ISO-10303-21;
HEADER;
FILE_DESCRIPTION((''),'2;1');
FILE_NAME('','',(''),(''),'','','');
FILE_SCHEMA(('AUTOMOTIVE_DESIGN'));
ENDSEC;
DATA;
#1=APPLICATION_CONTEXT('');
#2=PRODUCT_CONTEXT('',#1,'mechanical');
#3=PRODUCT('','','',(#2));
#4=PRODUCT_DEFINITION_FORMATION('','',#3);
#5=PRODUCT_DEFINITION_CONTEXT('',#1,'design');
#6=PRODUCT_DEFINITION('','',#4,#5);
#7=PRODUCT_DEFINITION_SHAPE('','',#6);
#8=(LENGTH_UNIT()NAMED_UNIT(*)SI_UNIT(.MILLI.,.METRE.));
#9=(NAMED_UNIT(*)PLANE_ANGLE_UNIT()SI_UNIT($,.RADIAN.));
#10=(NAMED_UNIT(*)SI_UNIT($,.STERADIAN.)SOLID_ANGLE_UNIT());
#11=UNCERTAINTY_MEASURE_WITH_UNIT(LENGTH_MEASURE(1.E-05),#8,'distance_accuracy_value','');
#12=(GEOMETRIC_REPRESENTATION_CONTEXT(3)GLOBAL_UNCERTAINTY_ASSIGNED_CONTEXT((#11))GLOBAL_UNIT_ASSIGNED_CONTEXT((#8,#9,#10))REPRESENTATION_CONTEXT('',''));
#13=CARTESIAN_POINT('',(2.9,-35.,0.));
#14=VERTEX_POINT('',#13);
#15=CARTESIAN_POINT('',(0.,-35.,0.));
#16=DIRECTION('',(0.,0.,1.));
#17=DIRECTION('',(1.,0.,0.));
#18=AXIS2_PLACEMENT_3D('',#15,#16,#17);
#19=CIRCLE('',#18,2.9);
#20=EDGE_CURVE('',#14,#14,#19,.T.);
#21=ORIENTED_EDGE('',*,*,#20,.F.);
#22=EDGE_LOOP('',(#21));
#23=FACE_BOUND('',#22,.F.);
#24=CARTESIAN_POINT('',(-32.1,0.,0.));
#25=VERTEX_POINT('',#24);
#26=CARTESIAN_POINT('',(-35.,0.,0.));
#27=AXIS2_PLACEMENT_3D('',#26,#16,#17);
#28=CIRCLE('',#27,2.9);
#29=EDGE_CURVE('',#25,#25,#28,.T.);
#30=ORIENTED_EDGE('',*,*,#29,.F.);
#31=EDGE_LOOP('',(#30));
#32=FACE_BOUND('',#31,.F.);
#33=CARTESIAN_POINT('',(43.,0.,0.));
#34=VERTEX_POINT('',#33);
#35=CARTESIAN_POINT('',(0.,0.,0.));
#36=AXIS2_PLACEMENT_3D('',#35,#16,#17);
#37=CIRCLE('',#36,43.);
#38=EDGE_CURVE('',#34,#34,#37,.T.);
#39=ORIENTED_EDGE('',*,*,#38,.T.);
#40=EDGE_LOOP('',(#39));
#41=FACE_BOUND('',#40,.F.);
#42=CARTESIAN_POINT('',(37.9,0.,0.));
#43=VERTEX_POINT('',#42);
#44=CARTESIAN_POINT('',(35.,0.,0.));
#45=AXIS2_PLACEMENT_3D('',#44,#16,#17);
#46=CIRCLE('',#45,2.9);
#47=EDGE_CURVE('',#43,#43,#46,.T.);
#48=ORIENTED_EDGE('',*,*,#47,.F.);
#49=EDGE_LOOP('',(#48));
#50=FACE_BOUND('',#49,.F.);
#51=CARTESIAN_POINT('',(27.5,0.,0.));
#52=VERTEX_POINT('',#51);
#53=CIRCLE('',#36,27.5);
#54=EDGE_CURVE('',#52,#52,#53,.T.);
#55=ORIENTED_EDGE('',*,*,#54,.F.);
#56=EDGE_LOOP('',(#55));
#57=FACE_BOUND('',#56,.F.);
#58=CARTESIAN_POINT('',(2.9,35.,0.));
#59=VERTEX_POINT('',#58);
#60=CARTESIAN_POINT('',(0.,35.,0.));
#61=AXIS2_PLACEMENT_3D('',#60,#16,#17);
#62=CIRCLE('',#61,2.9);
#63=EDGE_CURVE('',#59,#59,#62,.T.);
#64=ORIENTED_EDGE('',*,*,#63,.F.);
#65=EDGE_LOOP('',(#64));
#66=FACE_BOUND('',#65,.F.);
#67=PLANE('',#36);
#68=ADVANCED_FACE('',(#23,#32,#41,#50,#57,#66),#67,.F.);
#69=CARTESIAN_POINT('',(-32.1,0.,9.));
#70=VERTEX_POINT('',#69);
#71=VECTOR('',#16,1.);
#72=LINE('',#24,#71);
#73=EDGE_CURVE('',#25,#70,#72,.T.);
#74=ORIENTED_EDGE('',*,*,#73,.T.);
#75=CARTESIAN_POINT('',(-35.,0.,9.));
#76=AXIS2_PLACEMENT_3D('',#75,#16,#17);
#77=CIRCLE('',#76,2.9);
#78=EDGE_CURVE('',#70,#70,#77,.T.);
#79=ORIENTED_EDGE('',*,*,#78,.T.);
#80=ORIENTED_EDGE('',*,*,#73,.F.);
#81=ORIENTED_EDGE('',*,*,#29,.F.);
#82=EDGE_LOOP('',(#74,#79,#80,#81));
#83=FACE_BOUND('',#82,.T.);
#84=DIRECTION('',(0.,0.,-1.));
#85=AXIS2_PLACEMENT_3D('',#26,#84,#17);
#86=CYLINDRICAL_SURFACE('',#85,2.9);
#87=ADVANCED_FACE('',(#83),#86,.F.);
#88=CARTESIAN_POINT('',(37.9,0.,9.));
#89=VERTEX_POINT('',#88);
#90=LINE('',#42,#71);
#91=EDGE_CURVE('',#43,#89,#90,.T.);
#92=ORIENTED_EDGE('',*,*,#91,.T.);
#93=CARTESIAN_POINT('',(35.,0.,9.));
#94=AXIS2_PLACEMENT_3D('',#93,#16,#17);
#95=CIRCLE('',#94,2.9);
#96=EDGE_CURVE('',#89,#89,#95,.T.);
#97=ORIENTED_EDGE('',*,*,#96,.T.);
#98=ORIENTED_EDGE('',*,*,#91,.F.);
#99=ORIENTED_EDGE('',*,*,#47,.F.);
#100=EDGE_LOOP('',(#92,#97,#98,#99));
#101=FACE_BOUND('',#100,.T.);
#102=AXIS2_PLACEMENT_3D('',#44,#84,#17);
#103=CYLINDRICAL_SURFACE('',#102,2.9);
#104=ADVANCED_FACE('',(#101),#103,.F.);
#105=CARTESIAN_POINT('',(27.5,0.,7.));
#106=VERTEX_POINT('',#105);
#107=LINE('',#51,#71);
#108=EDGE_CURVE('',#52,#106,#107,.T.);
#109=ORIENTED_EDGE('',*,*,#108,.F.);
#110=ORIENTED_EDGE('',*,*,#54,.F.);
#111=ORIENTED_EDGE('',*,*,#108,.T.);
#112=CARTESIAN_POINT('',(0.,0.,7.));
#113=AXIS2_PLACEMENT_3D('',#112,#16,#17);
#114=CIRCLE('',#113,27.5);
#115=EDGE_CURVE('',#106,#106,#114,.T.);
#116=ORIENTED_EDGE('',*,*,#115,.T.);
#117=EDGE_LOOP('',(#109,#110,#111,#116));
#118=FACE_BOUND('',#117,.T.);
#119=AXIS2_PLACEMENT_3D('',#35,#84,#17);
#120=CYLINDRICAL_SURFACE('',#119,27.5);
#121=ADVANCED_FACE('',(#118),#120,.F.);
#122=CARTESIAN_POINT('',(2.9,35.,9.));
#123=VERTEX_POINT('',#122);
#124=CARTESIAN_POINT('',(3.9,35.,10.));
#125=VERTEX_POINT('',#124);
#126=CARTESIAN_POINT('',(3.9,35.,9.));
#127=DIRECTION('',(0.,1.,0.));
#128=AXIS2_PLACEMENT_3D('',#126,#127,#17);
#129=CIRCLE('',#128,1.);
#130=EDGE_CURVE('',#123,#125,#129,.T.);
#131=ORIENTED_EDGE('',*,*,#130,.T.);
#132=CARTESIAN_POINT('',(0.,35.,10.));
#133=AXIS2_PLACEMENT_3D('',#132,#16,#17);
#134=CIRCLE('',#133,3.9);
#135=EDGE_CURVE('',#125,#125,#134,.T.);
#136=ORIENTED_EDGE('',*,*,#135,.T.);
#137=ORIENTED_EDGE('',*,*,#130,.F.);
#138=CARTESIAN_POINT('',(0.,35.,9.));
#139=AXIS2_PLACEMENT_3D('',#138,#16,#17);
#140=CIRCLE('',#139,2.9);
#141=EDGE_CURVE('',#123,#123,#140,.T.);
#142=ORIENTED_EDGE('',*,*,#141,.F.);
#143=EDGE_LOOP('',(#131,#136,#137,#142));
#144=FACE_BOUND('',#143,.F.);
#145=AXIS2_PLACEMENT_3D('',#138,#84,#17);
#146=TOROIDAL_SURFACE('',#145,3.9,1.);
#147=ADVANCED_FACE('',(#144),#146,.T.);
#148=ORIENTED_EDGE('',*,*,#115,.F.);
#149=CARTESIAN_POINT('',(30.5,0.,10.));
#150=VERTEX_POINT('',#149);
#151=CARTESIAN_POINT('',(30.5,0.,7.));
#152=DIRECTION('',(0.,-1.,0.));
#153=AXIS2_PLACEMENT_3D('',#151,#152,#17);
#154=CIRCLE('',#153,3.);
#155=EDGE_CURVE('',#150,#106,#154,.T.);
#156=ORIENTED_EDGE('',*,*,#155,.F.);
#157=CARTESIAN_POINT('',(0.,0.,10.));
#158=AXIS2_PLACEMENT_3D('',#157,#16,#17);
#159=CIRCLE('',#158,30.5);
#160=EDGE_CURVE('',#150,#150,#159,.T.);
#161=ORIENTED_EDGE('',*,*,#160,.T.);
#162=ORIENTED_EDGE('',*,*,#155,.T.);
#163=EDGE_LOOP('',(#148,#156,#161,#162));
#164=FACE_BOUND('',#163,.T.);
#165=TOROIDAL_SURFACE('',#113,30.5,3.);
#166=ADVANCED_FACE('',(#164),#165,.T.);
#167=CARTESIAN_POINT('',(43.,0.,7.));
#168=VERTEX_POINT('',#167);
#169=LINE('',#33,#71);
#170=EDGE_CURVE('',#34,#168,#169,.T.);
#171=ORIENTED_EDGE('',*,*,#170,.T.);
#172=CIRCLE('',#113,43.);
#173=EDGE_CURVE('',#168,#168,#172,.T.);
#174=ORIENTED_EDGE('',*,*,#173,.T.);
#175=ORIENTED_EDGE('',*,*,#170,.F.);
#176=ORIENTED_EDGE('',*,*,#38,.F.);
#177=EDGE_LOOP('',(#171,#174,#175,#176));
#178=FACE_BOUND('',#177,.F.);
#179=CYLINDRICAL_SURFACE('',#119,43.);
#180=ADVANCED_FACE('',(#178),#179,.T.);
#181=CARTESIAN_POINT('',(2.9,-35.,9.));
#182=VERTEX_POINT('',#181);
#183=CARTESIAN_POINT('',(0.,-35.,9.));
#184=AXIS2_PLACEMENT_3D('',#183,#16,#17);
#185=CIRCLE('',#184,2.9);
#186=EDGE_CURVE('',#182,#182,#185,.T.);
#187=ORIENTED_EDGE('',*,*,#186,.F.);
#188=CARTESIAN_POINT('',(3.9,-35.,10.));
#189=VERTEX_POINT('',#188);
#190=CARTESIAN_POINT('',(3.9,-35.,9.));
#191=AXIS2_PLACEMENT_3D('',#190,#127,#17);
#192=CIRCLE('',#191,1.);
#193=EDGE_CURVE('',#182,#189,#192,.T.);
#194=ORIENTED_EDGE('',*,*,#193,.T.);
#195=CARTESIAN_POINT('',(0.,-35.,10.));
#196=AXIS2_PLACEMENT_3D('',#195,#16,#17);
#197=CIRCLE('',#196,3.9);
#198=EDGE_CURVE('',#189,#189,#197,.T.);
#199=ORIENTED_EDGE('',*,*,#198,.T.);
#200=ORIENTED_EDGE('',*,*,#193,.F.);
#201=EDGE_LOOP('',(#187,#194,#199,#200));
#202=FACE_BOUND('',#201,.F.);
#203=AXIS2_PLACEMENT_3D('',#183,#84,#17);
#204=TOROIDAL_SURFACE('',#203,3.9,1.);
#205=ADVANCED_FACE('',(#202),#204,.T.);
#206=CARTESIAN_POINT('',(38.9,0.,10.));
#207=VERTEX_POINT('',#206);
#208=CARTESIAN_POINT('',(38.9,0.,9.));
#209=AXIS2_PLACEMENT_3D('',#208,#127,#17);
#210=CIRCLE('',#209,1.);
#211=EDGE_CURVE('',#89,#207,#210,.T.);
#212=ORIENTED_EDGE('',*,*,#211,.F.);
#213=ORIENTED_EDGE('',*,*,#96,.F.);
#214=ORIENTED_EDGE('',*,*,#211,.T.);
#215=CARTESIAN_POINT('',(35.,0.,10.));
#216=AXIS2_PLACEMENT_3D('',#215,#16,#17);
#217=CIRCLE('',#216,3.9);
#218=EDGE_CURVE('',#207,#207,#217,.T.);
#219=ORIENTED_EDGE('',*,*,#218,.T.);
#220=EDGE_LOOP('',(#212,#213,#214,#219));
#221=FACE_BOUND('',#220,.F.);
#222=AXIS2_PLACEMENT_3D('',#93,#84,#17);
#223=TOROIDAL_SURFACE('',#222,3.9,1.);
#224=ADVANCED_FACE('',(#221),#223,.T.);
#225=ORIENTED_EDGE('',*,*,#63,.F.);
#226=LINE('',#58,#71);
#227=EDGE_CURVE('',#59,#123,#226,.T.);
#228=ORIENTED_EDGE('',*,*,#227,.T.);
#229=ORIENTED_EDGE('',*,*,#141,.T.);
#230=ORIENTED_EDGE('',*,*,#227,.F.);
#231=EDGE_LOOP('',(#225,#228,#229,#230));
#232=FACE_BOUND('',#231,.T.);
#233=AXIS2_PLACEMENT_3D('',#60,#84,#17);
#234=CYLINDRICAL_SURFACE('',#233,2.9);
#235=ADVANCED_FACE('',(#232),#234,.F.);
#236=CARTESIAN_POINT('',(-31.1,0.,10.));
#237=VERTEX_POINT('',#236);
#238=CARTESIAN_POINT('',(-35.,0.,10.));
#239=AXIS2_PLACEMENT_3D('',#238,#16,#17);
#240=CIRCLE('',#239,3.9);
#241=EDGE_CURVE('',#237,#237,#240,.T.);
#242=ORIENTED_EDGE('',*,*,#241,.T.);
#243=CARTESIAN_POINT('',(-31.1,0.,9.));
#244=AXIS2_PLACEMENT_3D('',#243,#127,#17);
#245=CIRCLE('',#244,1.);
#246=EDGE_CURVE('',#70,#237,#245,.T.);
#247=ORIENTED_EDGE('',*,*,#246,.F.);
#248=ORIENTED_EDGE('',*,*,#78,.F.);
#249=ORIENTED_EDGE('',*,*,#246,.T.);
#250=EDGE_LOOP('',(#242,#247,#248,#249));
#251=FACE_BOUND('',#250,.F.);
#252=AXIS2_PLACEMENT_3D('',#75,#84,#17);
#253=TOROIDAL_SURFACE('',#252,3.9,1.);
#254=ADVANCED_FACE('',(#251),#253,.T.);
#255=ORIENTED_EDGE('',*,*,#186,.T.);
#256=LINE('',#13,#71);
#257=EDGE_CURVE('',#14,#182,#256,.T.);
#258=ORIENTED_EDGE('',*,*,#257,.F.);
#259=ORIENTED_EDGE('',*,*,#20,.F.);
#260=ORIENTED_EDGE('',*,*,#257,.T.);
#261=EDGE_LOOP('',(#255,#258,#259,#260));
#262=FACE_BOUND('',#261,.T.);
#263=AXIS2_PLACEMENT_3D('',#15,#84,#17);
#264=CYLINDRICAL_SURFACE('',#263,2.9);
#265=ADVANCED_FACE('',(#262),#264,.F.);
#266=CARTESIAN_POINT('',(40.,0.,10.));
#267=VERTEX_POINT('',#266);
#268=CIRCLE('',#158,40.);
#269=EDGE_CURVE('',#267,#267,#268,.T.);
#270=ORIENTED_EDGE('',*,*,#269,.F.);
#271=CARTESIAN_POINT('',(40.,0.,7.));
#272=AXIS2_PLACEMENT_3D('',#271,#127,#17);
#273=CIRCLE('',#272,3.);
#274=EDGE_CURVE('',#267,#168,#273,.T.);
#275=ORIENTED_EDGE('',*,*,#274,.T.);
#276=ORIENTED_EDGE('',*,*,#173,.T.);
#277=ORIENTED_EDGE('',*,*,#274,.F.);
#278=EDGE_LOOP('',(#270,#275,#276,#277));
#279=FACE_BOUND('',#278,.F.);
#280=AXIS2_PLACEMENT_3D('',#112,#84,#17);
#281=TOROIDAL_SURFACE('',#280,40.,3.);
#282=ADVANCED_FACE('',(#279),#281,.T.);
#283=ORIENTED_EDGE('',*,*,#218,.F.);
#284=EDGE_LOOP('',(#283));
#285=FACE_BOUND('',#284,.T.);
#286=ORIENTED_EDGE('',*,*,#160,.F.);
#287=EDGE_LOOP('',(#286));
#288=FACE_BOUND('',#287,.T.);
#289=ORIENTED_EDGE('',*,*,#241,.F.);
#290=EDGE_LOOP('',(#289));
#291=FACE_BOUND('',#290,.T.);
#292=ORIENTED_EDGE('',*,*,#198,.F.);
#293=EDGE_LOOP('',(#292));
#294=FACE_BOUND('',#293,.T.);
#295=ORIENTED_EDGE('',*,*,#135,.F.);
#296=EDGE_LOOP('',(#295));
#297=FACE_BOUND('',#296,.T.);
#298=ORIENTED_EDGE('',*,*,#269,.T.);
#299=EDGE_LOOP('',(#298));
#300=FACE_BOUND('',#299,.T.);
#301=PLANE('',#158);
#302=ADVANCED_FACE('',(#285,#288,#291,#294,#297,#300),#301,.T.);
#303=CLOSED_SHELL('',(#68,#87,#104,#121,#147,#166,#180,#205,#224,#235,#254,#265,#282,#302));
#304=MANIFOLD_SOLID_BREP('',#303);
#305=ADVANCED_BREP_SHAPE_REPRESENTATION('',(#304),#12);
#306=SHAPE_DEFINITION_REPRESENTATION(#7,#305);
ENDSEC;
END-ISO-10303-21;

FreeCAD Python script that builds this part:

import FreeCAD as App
import Part
import Sketcher
from FreeCAD import Vector


def edges_at(feature, points):
    """Names of the edges that pass closest to the given points."""
    edges = feature.Shape.Edges
    near = lambda p: min(range(len(edges)), key=lambda i: edges[i].distToShape(Part.Vertex(*p))[0])
    return sorted({f"Edge{near(p) + 1}" for p in points})

doc = App.newDocument("Part")
body = doc.addObject("PartDesign::Body", "Body")

# Sketch on XY plane
sketch1 = body.newObject("Sketcher::SketchObject", "Sketch")
sketch1.AttachmentSupport = (doc.getObject("XY_Plane"), [""])
sketch1.MapMode = "FlatFace"
sketch1.addGeometry([
    Part.Circle(Vector(0, 0, 0), Vector(0, 0, 1), 43),  # 0
    Part.Circle(Vector(0, -35, 0), Vector(0, 0, 1), 2.9),  # 1
    Part.Circle(Vector(0, 0, 0), Vector(0, 0, 1), 27.5),  # 2
    Part.Circle(Vector(-35, 0, 0), Vector(0, 0, 1), 2.9),  # 3
    Part.Circle(Vector(35, 0, 0), Vector(0, 0, 1), 2.9),  # 4
    Part.Circle(Vector(0, 35, 0), Vector(0, 0, 1), 2.9),  # 5
], False)
sketch1.addConstraint([
    Sketcher.Constraint("Coincident", 0, 3, -1, 1),
    Sketcher.Constraint("Coincident", 2, 3, -1, 1),
    Sketcher.Constraint("Equal", 1, 3),
    Sketcher.Constraint("Equal", 3, 4),
    Sketcher.Constraint("Equal", 4, 5),
    Sketcher.Constraint("Symmetric", 3, 3, 4, 3, -1, 1),
    Sketcher.Constraint("Symmetric", 1, 3, 5, 3, -1, 1),
    Sketcher.Constraint("PointOnObject", 1, 3, -2),
    Sketcher.Constraint("PointOnObject", 3, 3, -1),
    Sketcher.Constraint("Diameter", 0, 86.0),
    Sketcher.Constraint("Diameter", 2, 55.0),
    Sketcher.Constraint("Diameter", 1, 5.8),
    Sketcher.Constraint("DistanceY", 1, 3, -1, 1, 35.0),
    Sketcher.Constraint("DistanceX", 3, 3, -1, 1, 35.0),
])
pad1 = body.newObject("PartDesign::Pad", "Pad")
pad1.Profile = sketch1
pad1.Length = 10
doc.recompute()

fillet = body.newObject("PartDesign::Fillet", "Fillet")
fillet.Base = (pad1, edges_at(pad1, [
    (-37.9, 0, 10),
    (-2.9, 35, 10),
    (32.1, 0, 10),
    (-2.9, -35, 10),
]))
fillet.Radius = 1
doc.recompute()

fillet2 = body.newObject("PartDesign::Fillet", "Fillet001")
fillet2.Base = (fillet, edges_at(fillet, [(-27.5, 0, 10), (-43, 0, 10)]))
fillet2.Radius = 3

doc.recompute()
